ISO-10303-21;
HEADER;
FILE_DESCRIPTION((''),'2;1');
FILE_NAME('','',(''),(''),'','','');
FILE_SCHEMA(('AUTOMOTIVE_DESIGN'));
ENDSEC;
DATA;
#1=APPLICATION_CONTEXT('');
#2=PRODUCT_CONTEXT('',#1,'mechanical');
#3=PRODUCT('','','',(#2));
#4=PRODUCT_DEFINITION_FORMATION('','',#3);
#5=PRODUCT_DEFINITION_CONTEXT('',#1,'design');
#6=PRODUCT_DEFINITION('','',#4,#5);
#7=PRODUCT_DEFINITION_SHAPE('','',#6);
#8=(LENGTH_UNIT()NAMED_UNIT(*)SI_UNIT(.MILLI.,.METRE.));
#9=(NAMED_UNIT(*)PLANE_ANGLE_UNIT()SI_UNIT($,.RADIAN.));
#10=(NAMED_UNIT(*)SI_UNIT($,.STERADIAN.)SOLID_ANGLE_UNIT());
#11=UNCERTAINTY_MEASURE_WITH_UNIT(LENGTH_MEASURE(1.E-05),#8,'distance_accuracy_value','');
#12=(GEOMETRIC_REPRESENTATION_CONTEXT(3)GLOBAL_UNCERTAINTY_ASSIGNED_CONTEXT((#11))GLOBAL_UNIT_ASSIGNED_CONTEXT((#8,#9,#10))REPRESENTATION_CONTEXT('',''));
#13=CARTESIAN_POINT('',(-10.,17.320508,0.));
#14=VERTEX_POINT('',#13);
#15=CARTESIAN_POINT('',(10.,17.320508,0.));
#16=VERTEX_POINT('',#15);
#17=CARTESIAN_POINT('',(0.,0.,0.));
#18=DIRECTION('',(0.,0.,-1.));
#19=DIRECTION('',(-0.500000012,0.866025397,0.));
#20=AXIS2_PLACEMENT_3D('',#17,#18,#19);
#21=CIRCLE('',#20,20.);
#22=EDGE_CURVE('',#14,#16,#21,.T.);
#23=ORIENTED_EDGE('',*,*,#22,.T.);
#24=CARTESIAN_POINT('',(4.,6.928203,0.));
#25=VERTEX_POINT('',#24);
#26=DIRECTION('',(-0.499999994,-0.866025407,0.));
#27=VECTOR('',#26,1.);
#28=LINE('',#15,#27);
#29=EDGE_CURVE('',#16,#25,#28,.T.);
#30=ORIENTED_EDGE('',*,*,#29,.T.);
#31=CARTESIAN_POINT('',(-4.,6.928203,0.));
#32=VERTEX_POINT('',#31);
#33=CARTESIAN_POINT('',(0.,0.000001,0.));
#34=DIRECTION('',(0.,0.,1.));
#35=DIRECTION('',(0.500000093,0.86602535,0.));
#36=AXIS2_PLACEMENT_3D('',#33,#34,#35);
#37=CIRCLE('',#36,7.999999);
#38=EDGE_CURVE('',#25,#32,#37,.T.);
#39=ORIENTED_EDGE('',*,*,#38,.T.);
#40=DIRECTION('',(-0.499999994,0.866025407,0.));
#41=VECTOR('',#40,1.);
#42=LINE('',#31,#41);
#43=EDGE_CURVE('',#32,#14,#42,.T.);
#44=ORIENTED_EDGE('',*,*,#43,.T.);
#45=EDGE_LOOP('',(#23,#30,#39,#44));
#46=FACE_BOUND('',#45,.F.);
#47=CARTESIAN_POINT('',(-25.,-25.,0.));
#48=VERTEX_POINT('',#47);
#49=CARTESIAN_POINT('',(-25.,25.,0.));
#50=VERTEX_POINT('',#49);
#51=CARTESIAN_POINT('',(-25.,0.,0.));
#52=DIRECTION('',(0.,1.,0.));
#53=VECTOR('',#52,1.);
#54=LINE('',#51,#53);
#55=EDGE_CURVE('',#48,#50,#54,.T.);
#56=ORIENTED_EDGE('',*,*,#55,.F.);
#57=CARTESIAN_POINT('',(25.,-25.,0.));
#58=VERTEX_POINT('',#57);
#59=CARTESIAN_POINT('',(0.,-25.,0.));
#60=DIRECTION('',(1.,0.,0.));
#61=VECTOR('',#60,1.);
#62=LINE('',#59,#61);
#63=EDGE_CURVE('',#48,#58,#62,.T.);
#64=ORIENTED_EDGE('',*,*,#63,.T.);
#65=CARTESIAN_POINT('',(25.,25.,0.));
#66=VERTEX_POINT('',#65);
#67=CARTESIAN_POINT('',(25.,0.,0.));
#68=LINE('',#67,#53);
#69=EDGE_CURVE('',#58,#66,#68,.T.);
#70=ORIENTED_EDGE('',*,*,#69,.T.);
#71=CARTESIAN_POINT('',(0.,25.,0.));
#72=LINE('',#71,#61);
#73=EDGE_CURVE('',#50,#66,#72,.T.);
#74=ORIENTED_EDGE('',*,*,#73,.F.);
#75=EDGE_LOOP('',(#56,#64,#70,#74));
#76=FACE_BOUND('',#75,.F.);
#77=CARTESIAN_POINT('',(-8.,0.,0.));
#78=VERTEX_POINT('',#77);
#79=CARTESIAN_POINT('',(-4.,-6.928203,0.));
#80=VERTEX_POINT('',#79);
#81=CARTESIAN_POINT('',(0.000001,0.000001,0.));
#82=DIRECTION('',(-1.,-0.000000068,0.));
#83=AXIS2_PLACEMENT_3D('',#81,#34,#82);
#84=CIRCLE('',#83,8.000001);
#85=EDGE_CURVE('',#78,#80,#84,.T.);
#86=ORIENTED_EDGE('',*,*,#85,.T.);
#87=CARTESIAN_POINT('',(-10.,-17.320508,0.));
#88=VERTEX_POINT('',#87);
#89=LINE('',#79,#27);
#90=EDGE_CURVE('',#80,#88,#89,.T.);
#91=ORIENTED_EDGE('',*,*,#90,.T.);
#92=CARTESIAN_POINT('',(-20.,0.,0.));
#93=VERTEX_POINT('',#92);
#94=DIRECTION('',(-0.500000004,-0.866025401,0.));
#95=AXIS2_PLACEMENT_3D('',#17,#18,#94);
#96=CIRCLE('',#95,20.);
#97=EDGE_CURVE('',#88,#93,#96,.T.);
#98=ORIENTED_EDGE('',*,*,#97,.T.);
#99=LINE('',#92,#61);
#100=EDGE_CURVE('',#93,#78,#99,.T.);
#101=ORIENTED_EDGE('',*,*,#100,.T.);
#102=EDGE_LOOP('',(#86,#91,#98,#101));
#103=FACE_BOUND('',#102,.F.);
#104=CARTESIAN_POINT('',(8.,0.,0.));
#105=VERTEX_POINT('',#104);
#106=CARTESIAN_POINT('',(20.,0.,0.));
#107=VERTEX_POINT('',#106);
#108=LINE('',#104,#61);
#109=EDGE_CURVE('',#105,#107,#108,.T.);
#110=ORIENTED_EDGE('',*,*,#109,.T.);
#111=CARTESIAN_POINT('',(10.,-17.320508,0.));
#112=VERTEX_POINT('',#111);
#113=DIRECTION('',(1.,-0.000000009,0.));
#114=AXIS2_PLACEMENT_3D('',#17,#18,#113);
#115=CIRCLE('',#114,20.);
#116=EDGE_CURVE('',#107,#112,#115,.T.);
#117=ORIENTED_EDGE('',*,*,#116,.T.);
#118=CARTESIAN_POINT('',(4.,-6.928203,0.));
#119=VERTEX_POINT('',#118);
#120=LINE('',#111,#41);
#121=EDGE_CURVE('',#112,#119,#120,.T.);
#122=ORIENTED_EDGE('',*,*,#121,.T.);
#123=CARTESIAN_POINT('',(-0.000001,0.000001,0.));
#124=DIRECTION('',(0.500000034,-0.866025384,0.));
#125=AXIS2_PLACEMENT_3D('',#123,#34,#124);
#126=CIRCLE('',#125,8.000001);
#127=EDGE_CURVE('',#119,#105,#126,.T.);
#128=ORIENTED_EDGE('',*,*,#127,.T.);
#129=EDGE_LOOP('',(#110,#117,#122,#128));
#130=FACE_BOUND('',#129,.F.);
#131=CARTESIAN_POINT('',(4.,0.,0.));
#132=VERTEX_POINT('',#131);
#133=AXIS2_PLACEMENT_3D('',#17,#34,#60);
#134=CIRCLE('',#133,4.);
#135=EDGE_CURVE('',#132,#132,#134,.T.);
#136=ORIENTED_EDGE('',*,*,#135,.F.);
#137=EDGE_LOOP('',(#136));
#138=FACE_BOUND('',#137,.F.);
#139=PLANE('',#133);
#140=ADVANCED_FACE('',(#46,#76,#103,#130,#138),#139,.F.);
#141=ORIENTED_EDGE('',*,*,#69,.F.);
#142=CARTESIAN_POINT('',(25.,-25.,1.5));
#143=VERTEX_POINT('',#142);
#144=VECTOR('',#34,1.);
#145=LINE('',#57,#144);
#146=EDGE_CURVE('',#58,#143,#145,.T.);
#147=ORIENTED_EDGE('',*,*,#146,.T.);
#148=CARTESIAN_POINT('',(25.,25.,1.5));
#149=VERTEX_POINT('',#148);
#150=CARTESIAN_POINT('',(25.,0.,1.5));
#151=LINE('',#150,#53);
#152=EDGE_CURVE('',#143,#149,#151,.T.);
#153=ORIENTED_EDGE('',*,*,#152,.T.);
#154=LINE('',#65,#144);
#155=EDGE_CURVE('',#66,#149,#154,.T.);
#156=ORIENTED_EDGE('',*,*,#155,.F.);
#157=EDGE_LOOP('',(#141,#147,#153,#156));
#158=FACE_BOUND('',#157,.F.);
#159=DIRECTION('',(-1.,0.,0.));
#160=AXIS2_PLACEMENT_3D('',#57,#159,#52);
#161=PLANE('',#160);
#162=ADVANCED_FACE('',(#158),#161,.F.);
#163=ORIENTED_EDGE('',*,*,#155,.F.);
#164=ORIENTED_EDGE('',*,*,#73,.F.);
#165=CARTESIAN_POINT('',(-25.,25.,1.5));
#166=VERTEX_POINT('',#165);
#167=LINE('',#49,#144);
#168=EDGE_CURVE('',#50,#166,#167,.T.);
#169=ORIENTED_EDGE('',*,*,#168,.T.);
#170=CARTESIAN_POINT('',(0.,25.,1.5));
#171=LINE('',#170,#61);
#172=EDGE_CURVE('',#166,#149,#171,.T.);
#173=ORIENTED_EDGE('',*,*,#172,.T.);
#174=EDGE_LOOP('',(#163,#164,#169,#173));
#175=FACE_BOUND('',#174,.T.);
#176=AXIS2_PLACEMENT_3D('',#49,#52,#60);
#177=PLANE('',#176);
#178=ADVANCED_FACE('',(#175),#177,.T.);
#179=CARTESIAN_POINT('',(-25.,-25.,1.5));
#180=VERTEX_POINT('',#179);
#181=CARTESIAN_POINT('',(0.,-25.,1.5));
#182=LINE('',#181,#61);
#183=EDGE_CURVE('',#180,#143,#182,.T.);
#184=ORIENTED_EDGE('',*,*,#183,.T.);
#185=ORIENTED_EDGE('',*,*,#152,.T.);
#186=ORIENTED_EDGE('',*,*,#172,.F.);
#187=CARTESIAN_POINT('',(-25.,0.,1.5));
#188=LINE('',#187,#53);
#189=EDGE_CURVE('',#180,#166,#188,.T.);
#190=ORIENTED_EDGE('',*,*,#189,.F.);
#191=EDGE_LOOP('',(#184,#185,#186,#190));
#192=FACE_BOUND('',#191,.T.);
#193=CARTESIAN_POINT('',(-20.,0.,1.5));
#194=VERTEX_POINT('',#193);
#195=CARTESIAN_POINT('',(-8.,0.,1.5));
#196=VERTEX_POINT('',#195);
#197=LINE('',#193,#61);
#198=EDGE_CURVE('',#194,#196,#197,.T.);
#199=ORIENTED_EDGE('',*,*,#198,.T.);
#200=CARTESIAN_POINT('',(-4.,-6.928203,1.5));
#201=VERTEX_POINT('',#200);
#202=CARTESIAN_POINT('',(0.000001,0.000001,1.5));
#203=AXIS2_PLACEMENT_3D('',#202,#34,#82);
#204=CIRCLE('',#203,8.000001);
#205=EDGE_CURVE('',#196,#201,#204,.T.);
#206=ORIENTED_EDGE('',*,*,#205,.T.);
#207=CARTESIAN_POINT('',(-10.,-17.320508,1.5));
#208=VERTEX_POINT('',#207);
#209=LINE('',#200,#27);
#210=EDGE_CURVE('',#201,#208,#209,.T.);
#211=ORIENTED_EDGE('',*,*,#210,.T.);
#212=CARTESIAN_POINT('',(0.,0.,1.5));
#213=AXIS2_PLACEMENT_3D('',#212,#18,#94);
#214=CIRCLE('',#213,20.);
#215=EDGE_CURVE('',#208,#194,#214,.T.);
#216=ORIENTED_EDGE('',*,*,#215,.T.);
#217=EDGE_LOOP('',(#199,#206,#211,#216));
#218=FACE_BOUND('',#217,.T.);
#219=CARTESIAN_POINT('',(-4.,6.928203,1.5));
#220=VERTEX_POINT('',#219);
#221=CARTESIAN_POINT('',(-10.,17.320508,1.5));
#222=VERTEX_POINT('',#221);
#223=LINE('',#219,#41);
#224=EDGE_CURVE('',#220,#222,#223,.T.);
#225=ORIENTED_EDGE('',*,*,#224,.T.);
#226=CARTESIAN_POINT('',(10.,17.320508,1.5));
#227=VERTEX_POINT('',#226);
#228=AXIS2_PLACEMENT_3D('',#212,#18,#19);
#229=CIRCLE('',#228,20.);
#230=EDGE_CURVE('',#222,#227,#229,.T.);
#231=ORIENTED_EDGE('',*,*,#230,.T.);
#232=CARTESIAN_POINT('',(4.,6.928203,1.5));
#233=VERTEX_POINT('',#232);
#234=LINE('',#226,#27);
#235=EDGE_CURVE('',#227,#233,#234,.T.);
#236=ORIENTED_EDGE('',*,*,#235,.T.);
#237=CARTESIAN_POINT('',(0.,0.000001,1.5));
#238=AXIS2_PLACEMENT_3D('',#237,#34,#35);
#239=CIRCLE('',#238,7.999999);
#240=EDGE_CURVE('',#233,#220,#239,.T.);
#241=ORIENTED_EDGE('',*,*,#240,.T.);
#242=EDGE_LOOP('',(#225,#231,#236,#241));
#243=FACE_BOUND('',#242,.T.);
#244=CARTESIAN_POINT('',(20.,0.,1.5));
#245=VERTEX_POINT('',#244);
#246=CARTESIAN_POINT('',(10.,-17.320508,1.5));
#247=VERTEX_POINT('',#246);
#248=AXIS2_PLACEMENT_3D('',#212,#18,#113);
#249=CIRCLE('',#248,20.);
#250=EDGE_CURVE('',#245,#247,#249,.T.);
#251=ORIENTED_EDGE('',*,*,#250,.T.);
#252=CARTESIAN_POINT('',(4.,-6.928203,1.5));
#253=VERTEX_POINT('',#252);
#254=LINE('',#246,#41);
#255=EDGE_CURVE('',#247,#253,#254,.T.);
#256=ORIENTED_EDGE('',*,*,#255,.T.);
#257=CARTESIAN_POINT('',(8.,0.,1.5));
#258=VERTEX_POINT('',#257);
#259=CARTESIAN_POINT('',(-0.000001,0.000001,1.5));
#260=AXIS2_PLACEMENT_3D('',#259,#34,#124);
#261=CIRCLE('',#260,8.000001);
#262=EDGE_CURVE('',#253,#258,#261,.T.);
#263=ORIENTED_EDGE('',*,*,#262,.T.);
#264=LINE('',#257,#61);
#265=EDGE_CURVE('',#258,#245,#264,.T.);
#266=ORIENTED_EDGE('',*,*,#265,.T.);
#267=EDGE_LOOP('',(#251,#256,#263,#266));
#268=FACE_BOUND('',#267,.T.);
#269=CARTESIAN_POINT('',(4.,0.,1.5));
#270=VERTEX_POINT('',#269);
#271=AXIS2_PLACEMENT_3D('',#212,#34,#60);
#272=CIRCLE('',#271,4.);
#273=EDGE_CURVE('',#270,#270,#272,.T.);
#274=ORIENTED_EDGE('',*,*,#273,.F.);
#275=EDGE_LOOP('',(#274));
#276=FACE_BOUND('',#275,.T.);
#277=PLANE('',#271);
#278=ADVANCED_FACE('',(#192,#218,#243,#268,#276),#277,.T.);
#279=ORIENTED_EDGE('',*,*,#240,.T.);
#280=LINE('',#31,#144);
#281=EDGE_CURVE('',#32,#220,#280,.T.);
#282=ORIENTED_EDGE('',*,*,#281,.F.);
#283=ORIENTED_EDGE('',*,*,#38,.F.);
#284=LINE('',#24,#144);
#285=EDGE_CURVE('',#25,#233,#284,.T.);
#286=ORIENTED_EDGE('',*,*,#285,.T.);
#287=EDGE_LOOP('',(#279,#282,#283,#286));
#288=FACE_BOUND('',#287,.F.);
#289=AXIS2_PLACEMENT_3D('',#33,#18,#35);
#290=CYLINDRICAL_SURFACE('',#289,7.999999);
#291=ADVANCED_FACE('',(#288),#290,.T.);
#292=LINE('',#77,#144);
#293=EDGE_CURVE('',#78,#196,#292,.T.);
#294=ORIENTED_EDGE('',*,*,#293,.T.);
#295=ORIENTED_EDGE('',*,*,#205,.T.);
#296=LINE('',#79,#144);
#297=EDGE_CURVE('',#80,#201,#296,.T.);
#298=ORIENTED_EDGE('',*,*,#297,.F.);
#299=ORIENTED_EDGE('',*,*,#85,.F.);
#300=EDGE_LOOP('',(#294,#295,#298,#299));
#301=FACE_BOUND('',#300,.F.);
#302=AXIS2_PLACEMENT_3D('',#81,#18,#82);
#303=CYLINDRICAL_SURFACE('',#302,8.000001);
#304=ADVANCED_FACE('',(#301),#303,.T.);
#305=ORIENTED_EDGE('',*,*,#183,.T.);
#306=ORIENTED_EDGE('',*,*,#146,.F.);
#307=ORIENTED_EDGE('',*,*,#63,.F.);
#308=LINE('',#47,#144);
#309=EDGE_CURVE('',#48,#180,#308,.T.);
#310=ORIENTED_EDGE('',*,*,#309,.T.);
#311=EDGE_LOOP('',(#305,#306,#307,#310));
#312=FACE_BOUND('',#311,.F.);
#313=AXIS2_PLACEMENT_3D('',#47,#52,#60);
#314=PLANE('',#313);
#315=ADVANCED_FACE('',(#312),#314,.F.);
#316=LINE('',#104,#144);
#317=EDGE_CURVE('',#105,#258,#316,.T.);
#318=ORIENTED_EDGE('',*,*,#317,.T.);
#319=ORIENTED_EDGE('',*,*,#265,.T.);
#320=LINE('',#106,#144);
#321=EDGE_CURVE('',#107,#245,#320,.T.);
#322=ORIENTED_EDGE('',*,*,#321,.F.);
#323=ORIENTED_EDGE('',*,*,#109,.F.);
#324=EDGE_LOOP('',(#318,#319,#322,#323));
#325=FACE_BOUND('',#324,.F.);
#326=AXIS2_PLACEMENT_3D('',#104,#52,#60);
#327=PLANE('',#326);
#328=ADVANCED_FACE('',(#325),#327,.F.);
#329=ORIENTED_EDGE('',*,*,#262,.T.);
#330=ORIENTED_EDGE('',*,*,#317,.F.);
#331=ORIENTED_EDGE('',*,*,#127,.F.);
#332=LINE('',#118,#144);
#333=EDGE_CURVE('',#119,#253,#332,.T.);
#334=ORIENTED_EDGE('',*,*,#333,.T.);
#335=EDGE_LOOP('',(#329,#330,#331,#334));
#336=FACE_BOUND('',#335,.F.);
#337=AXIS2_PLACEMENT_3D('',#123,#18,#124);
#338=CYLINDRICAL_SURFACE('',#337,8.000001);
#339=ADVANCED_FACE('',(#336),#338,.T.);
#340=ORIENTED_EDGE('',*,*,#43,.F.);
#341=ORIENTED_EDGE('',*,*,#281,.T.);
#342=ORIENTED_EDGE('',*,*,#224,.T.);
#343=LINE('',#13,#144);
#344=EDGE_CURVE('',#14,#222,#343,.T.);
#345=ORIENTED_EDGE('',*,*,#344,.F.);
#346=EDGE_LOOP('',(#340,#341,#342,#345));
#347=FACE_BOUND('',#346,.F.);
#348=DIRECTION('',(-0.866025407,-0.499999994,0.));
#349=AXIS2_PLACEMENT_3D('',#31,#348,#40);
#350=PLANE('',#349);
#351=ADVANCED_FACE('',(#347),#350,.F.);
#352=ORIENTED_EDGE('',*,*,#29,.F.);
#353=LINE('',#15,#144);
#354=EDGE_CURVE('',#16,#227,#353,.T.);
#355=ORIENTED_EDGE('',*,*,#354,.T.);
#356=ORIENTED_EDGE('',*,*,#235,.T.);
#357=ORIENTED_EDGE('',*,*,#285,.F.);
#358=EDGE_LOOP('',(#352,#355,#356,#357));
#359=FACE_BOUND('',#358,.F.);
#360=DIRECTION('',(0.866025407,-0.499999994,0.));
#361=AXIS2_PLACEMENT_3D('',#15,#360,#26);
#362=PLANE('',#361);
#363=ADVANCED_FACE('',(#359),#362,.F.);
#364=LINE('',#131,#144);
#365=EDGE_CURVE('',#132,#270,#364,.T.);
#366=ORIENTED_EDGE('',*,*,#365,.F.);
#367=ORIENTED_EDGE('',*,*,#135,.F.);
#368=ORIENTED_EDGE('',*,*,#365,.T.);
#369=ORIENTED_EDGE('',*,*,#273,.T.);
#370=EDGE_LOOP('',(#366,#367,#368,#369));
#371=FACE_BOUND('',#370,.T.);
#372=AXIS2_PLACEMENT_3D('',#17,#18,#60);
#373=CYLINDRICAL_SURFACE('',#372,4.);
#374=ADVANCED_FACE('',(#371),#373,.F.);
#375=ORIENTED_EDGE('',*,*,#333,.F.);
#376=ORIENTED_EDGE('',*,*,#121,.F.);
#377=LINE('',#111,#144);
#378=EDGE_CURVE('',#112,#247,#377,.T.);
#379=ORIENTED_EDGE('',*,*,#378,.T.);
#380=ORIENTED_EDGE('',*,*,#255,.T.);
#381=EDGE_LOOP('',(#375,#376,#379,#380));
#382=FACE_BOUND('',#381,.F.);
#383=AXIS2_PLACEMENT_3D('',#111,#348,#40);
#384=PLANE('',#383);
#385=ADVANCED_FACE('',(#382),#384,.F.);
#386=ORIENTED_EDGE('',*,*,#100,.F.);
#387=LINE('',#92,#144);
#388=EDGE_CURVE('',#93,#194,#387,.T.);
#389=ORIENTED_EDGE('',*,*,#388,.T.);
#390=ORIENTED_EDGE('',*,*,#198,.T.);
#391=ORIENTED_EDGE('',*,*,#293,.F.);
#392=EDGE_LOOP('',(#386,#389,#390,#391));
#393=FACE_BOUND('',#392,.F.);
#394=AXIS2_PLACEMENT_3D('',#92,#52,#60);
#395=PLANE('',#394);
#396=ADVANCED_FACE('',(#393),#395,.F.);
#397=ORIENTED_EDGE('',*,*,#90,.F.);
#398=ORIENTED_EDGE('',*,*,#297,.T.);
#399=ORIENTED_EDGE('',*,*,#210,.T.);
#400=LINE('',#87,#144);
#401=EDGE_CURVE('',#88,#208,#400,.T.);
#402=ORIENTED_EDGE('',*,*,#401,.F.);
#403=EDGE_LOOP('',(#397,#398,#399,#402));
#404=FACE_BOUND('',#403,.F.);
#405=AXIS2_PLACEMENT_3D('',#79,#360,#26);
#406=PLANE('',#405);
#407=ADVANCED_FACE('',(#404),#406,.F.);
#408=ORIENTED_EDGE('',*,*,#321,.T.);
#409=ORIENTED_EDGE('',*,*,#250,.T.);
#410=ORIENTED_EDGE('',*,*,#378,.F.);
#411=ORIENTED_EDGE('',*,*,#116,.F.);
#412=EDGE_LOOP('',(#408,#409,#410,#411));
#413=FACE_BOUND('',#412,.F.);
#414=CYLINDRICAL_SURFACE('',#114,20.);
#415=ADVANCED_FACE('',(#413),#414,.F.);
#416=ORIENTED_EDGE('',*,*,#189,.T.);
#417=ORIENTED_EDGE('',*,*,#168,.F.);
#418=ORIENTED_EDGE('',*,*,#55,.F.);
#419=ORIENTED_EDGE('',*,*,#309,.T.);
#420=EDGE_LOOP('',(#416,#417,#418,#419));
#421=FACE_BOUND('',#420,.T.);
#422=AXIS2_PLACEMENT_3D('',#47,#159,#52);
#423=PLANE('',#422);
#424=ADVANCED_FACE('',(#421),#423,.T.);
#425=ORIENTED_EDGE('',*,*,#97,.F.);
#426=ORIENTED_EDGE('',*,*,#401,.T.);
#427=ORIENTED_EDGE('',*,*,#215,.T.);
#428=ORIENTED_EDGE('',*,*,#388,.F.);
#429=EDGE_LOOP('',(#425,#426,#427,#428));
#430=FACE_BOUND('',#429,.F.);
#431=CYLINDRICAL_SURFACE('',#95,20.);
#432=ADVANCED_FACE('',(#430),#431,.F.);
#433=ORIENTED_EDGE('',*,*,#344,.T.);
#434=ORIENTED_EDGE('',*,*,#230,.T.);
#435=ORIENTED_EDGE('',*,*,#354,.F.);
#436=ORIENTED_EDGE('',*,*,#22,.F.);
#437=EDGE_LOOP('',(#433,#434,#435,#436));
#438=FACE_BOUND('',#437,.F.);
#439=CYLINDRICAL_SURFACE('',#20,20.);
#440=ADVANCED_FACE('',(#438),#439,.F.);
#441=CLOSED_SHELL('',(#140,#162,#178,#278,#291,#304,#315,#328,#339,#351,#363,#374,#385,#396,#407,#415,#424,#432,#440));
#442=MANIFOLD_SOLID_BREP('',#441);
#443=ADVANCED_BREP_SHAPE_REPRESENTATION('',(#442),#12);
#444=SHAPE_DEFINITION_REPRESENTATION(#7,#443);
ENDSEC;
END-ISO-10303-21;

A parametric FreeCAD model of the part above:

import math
import FreeCAD as App
import Part
import Sketcher
Q = App.Units.Quantity

doc = App.newDocument("Part")
body = doc.addObject("PartDesign::Body", "Body")

sketch1 = doc.addObject("Sketcher::SketchObject", "Sketch")
body.addObject(sketch1)
sketch1.AttachmentSupport = (doc.XY_Plane, [""])
sketch1.MapMode = "FlatFace"
sketch1.addGeometry([
    Part.LineSegment(App.Vector(-25, 25, 0), App.Vector(-25, -25, 0)),
    Part.LineSegment(App.Vector(-25, -25, 0), App.Vector(25, -25, 0)),
    Part.LineSegment(App.Vector(25, -25, 0), App.Vector(25, 25, 0)),
    Part.LineSegment(App.Vector(25, 25, 0), App.Vector(-25, 25, 0)),
    Part.LineSegment(App.Vector(-4, -6.9, 0), App.Vector(-10, -17.3, 0)),
    Part.ArcOfCircle(Part.Circle(App.Vector(0, 0, 0), App.Vector(0, 0, 1), 20), math.radians(-180), math.radians(-120)),
    Part.LineSegment(App.Vector(-20, 0, 0), App.Vector(-8, 0, 0)),
    Part.ArcOfCircle(Part.Circle(App.Vector(0, 0, 0), App.Vector(0, 0, 1), 8), math.radians(-180), math.radians(-120)),
    Part.LineSegment(App.Vector(8, 0, 0), App.Vector(20, 0, 0)),
    Part.ArcOfCircle(Part.Circle(App.Vector(0, 0, 0), App.Vector(0, 0, 1), 20), math.radians(-60), math.radians(0)),
    Part.LineSegment(App.Vector(10, -17.3, 0), App.Vector(4, -6.9, 0)),
    Part.ArcOfCircle(Part.Circle(App.Vector(0, 0, 0), App.Vector(0, 0, 1), 8), math.radians(-60), math.radians(0)),
    Part.Circle(App.Vector(0, 0, 0), App.Vector(0, 0, 1), 4),
    Part.LineSegment(App.Vector(-4, 6.9, 0), App.Vector(-10, 17.3, 0)),
    Part.ArcOfCircle(Part.Circle(App.Vector(0, 0, 0), App.Vector(0, 0, 1), 20), math.radians(60), math.radians(120)),
    Part.LineSegment(App.Vector(10, 17.3, 0), App.Vector(4, 6.9, 0)),
    Part.ArcOfCircle(Part.Circle(App.Vector(0, 0, 0), App.Vector(0, 0, 1), 8), math.radians(60), math.radians(120)),
], False)
sketch1.addConstraint([
    Sketcher.Constraint("Coincident", 0, 2, 1, 1),
    Sketcher.Constraint("Coincident", 1, 2, 2, 1),
    Sketcher.Constraint("Coincident", 2, 2, 3, 1),
    Sketcher.Constraint("Coincident", 3, 2, 0, 1),
    Sketcher.Constraint("Coincident", 4, 2, 5, 2),
    Sketcher.Constraint("Coincident", 5, 1, 6, 1),
    Sketcher.Constraint("Coincident", 6, 2, 7, 1),
    Sketcher.Constraint("Coincident", 7, 2, 4, 1),
    Sketcher.Constraint("Coincident", 8, 2, 9, 2),
    Sketcher.Constraint("Coincident", 9, 1, 10, 1),
    Sketcher.Constraint("Coincident", 10, 2, 11, 1),
    Sketcher.Constraint("Coincident", 11, 2, 8, 1),
    Sketcher.Constraint("Coincident", 13, 2, 14, 2),
    Sketcher.Constraint("Coincident", 14, 1, 15, 1),
    Sketcher.Constraint("Coincident", 15, 2, 16, 1),
    Sketcher.Constraint("Coincident", 16, 2, 13, 1),
    Sketcher.Constraint("Vertical", 0),
    Sketcher.Constraint("Horizontal", 1),
    Sketcher.Constraint("Vertical", 2),
    Sketcher.Constraint("Horizontal", 3),
    Sketcher.Constraint("Horizontal", 6),
    Sketcher.Constraint("Horizontal", 8),
    Sketcher.Constraint("Coincident", 5, 3, -1, 1),
    Sketcher.Constraint("Coincident", 7, 3, -1, 1),
    Sketcher.Constraint("Coincident", 9, 3, -1, 1),
    Sketcher.Constraint("Coincident", 11, 3, -1, 1),
    Sketcher.Constraint("Coincident", 12, 3, -1, 1),
    Sketcher.Constraint("Coincident", 14, 3, -1, 1),
    Sketcher.Constraint("Coincident", 16, 3, -1, 1),
    Sketcher.Constraint("Equal", 5, 9),
    Sketcher.Constraint("Equal", 7, 11),
    Sketcher.Constraint("Equal", 9, 14),
    Sketcher.Constraint("Symmetric", 0, 2, 2, 2, -1, 1),
    Sketcher.Constraint("Symmetric", 7, 2, 15, 2, -1, 1),
    Sketcher.Constraint("PointOnObject", 5, 1, -1),
    Sketcher.Constraint("PointOnObject", 8, 2, -1),
    Sketcher.Constraint("Parallel", 10, 13),
    Sketcher.Constraint("Parallel", 4, 15),
    Sketcher.Constraint("Horizontal", 4, 2, 9, 1),
    Sketcher.Constraint("Horizontal", 7, 2, 10, 2),
    Sketcher.Constraint("Horizontal", 13, 2, 14, 1),
    Sketcher.Constraint("Equal", 3, 0),
    Sketcher.Constraint("Diameter", 12, 8.0),
    Sketcher.Constraint("Radius", 5, 20.0),
    Sketcher.Constraint("Radius", 7, 8.000001),
    Sketcher.Constraint("DistanceX", 1, 1, 1, 2, 50.0),
    Sketcher.Constraint("Angle", 4, Q("-120 deg")),
    Sketcher.Constraint("DistanceX", 4, 2, -1, 1, 10.0),
])
pad1 = doc.addObject("PartDesign::Pad", "Pad")
body.addObject(pad1)
pad1.Profile = sketch1
pad1.Length = 1.5

doc.recompute()
